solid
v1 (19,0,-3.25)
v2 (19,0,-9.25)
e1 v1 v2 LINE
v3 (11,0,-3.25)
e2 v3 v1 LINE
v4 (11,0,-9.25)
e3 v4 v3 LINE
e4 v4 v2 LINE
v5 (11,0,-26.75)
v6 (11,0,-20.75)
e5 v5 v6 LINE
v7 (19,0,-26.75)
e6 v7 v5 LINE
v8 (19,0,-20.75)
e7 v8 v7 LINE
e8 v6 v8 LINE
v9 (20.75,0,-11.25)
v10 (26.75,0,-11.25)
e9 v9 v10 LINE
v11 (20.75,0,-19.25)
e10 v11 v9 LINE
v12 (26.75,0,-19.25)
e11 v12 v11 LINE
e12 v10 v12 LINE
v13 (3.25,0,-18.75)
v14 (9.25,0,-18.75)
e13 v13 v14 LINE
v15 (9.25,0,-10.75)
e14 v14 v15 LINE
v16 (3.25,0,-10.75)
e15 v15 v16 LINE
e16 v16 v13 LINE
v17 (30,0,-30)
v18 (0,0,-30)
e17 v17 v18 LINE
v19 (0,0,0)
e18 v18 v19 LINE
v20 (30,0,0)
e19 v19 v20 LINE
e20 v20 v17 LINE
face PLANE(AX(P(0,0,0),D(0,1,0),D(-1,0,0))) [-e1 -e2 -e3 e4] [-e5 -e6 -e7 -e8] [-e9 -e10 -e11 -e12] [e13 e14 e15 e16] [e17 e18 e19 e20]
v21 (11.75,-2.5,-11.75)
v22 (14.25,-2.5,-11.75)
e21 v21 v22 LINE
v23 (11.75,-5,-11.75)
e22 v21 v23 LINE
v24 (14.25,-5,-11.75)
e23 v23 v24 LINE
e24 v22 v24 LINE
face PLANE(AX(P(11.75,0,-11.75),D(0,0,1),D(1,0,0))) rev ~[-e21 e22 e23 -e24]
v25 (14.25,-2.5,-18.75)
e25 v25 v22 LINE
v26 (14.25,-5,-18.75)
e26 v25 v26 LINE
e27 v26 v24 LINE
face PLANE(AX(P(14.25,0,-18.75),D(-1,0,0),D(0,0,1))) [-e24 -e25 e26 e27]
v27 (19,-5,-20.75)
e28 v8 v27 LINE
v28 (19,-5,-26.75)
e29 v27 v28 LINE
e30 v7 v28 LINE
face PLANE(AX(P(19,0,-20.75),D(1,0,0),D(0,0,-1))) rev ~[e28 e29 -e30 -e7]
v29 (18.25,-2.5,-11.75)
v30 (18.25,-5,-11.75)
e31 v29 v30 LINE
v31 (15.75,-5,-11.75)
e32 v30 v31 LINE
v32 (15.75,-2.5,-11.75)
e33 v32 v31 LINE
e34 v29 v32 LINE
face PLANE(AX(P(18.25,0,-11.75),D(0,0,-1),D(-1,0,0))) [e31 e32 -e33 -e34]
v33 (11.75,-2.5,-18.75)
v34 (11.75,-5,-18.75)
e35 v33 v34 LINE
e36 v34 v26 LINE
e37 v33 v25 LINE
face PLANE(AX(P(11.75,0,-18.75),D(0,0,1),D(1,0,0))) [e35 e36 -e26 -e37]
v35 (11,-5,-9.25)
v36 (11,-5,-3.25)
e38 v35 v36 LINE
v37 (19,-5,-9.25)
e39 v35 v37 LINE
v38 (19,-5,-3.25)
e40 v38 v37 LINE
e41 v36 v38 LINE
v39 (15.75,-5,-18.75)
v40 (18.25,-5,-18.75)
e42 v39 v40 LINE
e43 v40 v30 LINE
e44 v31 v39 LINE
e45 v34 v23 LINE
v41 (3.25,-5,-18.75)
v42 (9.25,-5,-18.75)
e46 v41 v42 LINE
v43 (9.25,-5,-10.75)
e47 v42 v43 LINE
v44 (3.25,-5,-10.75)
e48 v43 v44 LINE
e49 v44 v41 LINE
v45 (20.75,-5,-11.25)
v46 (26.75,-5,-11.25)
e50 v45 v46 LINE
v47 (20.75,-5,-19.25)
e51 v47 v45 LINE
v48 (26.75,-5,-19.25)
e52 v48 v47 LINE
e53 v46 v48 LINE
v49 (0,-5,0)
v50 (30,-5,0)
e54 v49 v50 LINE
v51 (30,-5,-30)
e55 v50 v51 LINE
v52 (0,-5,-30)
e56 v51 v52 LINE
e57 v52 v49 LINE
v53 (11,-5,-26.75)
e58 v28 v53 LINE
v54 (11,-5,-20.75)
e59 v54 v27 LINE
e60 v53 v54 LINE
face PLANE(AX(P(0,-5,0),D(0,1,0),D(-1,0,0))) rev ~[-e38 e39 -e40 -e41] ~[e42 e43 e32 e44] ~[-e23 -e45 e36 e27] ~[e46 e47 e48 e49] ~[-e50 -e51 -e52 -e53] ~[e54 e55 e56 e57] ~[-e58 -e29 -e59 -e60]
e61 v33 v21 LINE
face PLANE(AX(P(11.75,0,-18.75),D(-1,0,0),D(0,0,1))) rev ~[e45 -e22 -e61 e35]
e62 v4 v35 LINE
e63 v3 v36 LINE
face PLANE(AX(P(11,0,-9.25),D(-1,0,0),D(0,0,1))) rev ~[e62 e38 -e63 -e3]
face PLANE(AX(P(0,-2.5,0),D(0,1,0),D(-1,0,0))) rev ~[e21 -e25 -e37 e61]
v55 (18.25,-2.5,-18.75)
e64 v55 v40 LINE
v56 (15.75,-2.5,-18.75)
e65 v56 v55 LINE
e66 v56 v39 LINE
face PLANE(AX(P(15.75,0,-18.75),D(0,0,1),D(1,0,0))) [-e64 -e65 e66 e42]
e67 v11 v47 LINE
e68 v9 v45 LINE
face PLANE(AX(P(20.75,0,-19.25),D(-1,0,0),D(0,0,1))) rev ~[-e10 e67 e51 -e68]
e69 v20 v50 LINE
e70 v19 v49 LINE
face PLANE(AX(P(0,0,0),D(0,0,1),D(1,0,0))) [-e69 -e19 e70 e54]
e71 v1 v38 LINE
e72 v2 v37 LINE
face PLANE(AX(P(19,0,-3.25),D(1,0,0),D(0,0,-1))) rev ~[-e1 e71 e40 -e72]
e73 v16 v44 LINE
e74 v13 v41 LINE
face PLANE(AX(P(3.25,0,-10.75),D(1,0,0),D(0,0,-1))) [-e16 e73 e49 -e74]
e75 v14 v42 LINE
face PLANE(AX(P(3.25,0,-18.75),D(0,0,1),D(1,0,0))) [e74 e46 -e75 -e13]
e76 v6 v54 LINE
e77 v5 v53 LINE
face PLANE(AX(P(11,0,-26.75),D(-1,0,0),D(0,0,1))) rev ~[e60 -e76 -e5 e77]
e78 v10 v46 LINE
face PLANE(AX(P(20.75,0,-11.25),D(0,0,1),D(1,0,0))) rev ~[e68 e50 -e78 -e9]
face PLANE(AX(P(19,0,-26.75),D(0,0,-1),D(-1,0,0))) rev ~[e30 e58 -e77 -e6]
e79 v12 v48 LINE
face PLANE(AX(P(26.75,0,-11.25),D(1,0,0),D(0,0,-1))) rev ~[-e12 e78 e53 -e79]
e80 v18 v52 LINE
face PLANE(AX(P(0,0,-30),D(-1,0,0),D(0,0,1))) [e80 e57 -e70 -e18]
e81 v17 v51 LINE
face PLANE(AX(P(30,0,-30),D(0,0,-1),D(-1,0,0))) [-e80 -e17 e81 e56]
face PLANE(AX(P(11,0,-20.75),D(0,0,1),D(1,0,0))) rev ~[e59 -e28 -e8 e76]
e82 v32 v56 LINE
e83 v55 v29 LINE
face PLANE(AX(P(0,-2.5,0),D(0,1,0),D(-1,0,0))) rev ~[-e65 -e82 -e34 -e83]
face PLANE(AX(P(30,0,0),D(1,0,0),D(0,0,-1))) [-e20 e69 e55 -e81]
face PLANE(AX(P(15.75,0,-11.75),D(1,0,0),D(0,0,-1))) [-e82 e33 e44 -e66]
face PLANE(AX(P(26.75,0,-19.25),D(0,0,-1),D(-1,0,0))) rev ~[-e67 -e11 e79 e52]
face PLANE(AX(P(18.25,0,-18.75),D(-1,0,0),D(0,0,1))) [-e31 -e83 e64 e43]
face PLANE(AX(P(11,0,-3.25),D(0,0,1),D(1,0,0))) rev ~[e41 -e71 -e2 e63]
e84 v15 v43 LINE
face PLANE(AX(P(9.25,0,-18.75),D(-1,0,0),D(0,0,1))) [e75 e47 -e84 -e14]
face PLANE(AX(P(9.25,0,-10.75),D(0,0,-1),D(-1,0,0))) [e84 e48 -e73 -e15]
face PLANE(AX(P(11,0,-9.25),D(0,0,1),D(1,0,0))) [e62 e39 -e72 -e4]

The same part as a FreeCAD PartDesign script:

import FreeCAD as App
import Part
import Sketcher
from FreeCAD import Vector
Q = App.Units.Quantity

doc = App.newDocument("Part")
body = doc.addObject("PartDesign::Body", "Body")

# Sketch on XZ plane
sketch1 = body.newObject("Sketcher::SketchObject", "Sketch")
sketch1.AttachmentSupport = (doc.getObject("XZ_Plane"), [""])
sketch1.MapMode = "FlatFace"
sketch1.addGeometry([
    Part.LineSegment(Vector(0, -30, 0), Vector(0, 0, 0)),  # 0
    Part.LineSegment(Vector(0, 0, 0), Vector(30, 0, 0)),  # 1
    Part.LineSegment(Vector(30, 0, 0), Vector(30, -30, 0)),  # 2
    Part.LineSegment(Vector(30, -30, 0), Vector(0, -30, 0)),  # 3
    Part.LineSegment(Vector(20.8, -11.2, 0), Vector(20.8, -19.2, 0)),  # 4
    Part.LineSegment(Vector(20.8, -19.2, 0), Vector(26.8, -19.2, 0)),  # 5
    Part.LineSegment(Vector(26.8, -19.2, 0), Vector(26.8, -11.2, 0)),  # 6
    Part.LineSegment(Vector(26.8, -11.2, 0), Vector(20.8, -11.2, 0)),  # 7
    Part.LineSegment(Vector(15.8, -11.8, 0), Vector(15.8, -18.8, 0)),  # 8
    Part.LineSegment(Vector(15.8, -18.8, 0), Vector(18.2, -18.8, 0)),  # 9
    Part.LineSegment(Vector(18.2, -18.8, 0), Vector(18.2, -11.8, 0)),  # 10
    Part.LineSegment(Vector(18.2, -11.8, 0), Vector(15.8, -11.8, 0)),  # 11
    Part.LineSegment(Vector(19, -20.8, 0), Vector(11, -20.8, 0)),  # 12
    Part.LineSegment(Vector(11, -20.8, 0), Vector(11, -26.8, 0)),  # 13
    Part.LineSegment(Vector(11, -26.8, 0), Vector(19, -26.8, 0)),  # 14
    Part.LineSegment(Vector(19, -26.8, 0), Vector(19, -20.8, 0)),  # 15
    Part.LineSegment(Vector(11.8, -11.8, 0), Vector(11.8, -18.8, 0)),  # 16
    Part.LineSegment(Vector(11.8, -18.8, 0), Vector(14.2, -18.8, 0)),  # 17
    Part.LineSegment(Vector(14.2, -18.8, 0), Vector(14.2, -11.8, 0)),  # 18
    Part.LineSegment(Vector(14.2, -11.8, 0), Vector(11.8, -11.8, 0)),  # 19
    Part.LineSegment(Vector(3.2, -18.8, 0), Vector(9.2, -18.8, 0)),  # 20
    Part.LineSegment(Vector(9.2, -18.8, 0), Vector(9.2, -10.8, 0)),  # 21
    Part.LineSegment(Vector(9.2, -10.8, 0), Vector(3.2, -10.8, 0)),  # 22
    Part.LineSegment(Vector(3.2, -10.8, 0), Vector(3.2, -18.8, 0)),  # 23
    Part.LineSegment(Vector(11, -3.2, 0), Vector(11, -9.2, 0)),  # 24
    Part.LineSegment(Vector(11, -9.2, 0), Vector(19, -9.2, 0)),  # 25
    Part.LineSegment(Vector(19, -9.2, 0), Vector(19, -3.2, 0)),  # 26
    Part.LineSegment(Vector(19, -3.2, 0), Vector(11, -3.2, 0)),  # 27
], False)
sketch1.addConstraint([
    Sketcher.Constraint("Coincident", 0, 2, 1, 1),
    Sketcher.Constraint("Coincident", 1, 2, 2, 1),
    Sketcher.Constraint("Coincident", 2, 2, 3, 1),
    Sketcher.Constraint("Coincident", 3, 2, 0, 1),
    Sketcher.Constraint("Coincident", 4, 2, 5, 1),
    Sketcher.Constraint("Coincident", 5, 2, 6, 1),
    Sketcher.Constraint("Coincident", 6, 2, 7, 1),
    Sketcher.Constraint("Coincident", 7, 2, 4, 1),
    Sketcher.Constraint("Coincident", 8, 2, 9, 1),
    Sketcher.Constraint("Coincident", 9, 2, 10, 1),
    Sketcher.Constraint("Coincident", 10, 2, 11, 1),
    Sketcher.Constraint("Coincident", 11, 2, 8, 1),
    Sketcher.Constraint("Coincident", 12, 2, 13, 1),
    Sketcher.Constraint("Coincident", 13, 2, 14, 1),
    Sketcher.Constraint("Coincident", 14, 2, 15, 1),
    Sketcher.Constraint("Coincident", 15, 2, 12, 1),
    Sketcher.Constraint("Coincident", 16, 2, 17, 1),
    Sketcher.Constraint("Coincident", 17, 2, 18, 1),
    Sketcher.Constraint("Coincident", 18, 2, 19, 1),
    Sketcher.Constraint("Coincident", 19, 2, 16, 1),
    Sketcher.Constraint("Coincident", 20, 2, 21, 1),
    Sketcher.Constraint("Coincident", 21, 2, 22, 1),
    Sketcher.Constraint("Coincident", 22, 2, 23, 1),
    Sketcher.Constraint("Coincident", 23, 2, 20, 1),
    Sketcher.Constraint("Coincident", 24, 2, 25, 1),
    Sketcher.Constraint("Coincident", 25, 2, 26, 1),
    Sketcher.Constraint("Coincident", 26, 2, 27, 1),
    Sketcher.Constraint("Coincident", 27, 2, 24, 1),
    Sketcher.Constraint("Vertical", 0),
    Sketcher.Constraint("Horizontal", 1),
    Sketcher.Constraint("Vertical", 2),
    Sketcher.Constraint("Horizontal", 3),
    Sketcher.Constraint("Vertical", 4),
    Sketcher.Constraint("Horizontal", 5),
    Sketcher.Constraint("Vertical", 6),
    Sketcher.Constraint("Horizontal", 7),
    Sketcher.Constraint("Vertical", 8),
    Sketcher.Constraint("Horizontal", 9),
    Sketcher.Constraint("Vertical", 10),
    Sketcher.Constraint("Horizontal", 11),
    Sketcher.Constraint("Horizontal", 12),
    Sketcher.Constraint("Vertical", 13),
    Sketcher.Constraint("Horizontal", 14),
    Sketcher.Constraint("Vertical", 15),
    Sketcher.Constraint("Vertical", 16),
    Sketcher.Constraint("Horizontal", 17),
    Sketcher.Constraint("Vertical", 18),
    Sketcher.Constraint("Horizontal", 19),
    Sketcher.Constraint("Horizontal", 20),
    Sketcher.Constraint("Vertical", 21),
    Sketcher.Constraint("Horizontal", 22),
    Sketcher.Constraint("Vertical", 23),
    Sketcher.Constraint("Vertical", 24),
    Sketcher.Constraint("Horizontal", 25),
    Sketcher.Constraint("Vertical", 26),
    Sketcher.Constraint("Horizontal", 27),
    Sketcher.Constraint("Coincident", 0, 2, -1, 1),
    Sketcher.Constraint("Horizontal", 9, 2, 16, 2),
    Sketcher.Constraint("Horizontal", 11, 2, 18, 2),
    Sketcher.Constraint("Horizontal", 17, 2, 20, 2),
    Sketcher.Constraint("Vertical", 13, 2, 24, 2),
    Sketcher.Constraint("Vertical", 15, 2, 25, 2),
    Sketcher.Constraint("Equal", 11, 17),
    Sketcher.Constraint("Equal", 7, 20),
    Sketcher.Constraint("Equal", 3, 0),
    Sketcher.Constraint("Equal", 27, 4),
    Sketcher.Constraint("Equal", 22, 13),
    Sketcher.Constraint("Equal", 6, 21),
    Sketcher.Constraint("Equal", 15, 24),
    Sketcher.Constraint("DistanceX", 1, 1, 1, 2, Q("30 mm")),
    Sketcher.Constraint("DistanceX", 5, 1, 5, 2, Q("6 mm")),
    Sketcher.Constraint("DistanceX", 12, 2, 12, 1, Q("8 mm")),
    Sketcher.Constraint("DistanceX", 9, 1, 9, 2, Q("2.5 mm")),
    Sketcher.Constraint("DistanceY", 12, 2, 8, 2, Q("2 mm")),
    Sketcher.Constraint("DistanceX", 16, 2, 8, 2, Q("4 mm")),
    Sketcher.Constraint("DistanceY", 19, 2, 21, 2, Q("1 mm")),
    Sketcher.Constraint("DistanceY", 7, 2, 25, 2, Q("2 mm")),
    Sketcher.Constraint("DistanceY", 4, 2, 8, 2, Q("0.5 mm")),
    Sketcher.Constraint("DistanceX", 9, 2, 4, 2, Q("2.5 mm")),
    Sketcher.Constraint("DistanceX", 20, 2, 16, 2, Q("2.5 mm")),
    Sketcher.Constraint("DistanceX", 9, 2, 14, 2, Q("0.75 mm")),
    Sketcher.Constraint("DistanceX", -1, 1, 12, 2, Q("11 mm")),
    Sketcher.Constraint("DistanceY", 4, 2, -1, 1, Q("19.25 mm")),
])
pad1 = body.newObject("PartDesign::Pad", "Pad")
pad1.Profile = sketch1
pad1.Length = 5

# Sketch on XZ plane
sketch2 = body.newObject("Sketcher::SketchObject", "Sketch001")
sketch2.AttachmentSupport = (doc.getObject("XZ_Plane"), [""])
sketch2.MapMode = "FlatFace"
sketch2.addGeometry([
    Part.LineSegment(Vector(14.2, -18.8, 0), Vector(11.8, -18.8, 0)),  # 0
    Part.LineSegment(Vector(11.8, -18.8, 0), Vector(11.8, -11.8, 0)),  # 1
    Part.LineSegment(Vector(11.8, -11.8, 0), Vector(14.2, -11.8, 0)),  # 2
    Part.LineSegment(Vector(14.2, -11.8, 0), Vector(14.2, -18.8, 0)),  # 3
    Part.LineSegment(Vector(18.2, -18.8, 0), Vector(15.8, -18.8, 0)),  # 4
    Part.LineSegment(Vector(15.8, -18.8, 0), Vector(15.8, -11.8, 0)),  # 5
    Part.LineSegment(Vector(15.8, -11.8, 0), Vector(18.2, -11.8, 0)),  # 6
    Part.LineSegment(Vector(18.2, -11.8, 0), Vector(18.2, -18.8, 0)),  # 7
], False)
sketch2.addConstraint([
    Sketcher.Constraint("Coincident", 0, 2, 1, 1),
    Sketcher.Constraint("Coincident", 1, 2, 2, 1),
    Sketcher.Constraint("Coincident", 2, 2, 3, 1),
    Sketcher.Constraint("Coincident", 3, 2, 0, 1),
    Sketcher.Constraint("Coincident", 4, 2, 5, 1),
    Sketcher.Constraint("Coincident", 5, 2, 6, 1),
    Sketcher.Constraint("Coincident", 6, 2, 7, 1),
    Sketcher.Constraint("Coincident", 7, 2, 4, 1),
    Sketcher.Constraint("Horizontal", 0),
    Sketcher.Constraint("Vertical", 1),
    Sketcher.Constraint("Horizontal", 2),
    Sketcher.Constraint("Vertical", 3),
    Sketcher.Constraint("Horizontal", 4),
    Sketcher.Constraint("Vertical", 5),
    Sketcher.Constraint("Horizontal", 6),
    Sketcher.Constraint("Vertical", 7),
    Sketcher.Constraint("Horizontal", 3, 2, 4, 2),
    Sketcher.Constraint("Horizontal", 2, 2, 5, 2),
    Sketcher.Constraint("Equal", 2, 4),
    Sketcher.Constraint("DistanceX", 0, 2, 0, 1, Q("2.5 mm")),
    Sketcher.Constraint("DistanceX", 0, 2, 4, 2, Q("4 mm")),
    Sketcher.Constraint("DistanceY", 1, 1, 1, 2, Q("7 mm")),
    Sketcher.Constraint("DistanceX", -1, 1, 0, 2, Q("11.75 mm")),
    Sketcher.Constraint("DistanceY", 0, 2, -1, 1, Q("18.75 mm")),
])
pad2 = body.newObject("PartDesign::Pad", "Pad001")
pad2.Profile = sketch2
pad2.Length = 2.5

doc.recompute()
